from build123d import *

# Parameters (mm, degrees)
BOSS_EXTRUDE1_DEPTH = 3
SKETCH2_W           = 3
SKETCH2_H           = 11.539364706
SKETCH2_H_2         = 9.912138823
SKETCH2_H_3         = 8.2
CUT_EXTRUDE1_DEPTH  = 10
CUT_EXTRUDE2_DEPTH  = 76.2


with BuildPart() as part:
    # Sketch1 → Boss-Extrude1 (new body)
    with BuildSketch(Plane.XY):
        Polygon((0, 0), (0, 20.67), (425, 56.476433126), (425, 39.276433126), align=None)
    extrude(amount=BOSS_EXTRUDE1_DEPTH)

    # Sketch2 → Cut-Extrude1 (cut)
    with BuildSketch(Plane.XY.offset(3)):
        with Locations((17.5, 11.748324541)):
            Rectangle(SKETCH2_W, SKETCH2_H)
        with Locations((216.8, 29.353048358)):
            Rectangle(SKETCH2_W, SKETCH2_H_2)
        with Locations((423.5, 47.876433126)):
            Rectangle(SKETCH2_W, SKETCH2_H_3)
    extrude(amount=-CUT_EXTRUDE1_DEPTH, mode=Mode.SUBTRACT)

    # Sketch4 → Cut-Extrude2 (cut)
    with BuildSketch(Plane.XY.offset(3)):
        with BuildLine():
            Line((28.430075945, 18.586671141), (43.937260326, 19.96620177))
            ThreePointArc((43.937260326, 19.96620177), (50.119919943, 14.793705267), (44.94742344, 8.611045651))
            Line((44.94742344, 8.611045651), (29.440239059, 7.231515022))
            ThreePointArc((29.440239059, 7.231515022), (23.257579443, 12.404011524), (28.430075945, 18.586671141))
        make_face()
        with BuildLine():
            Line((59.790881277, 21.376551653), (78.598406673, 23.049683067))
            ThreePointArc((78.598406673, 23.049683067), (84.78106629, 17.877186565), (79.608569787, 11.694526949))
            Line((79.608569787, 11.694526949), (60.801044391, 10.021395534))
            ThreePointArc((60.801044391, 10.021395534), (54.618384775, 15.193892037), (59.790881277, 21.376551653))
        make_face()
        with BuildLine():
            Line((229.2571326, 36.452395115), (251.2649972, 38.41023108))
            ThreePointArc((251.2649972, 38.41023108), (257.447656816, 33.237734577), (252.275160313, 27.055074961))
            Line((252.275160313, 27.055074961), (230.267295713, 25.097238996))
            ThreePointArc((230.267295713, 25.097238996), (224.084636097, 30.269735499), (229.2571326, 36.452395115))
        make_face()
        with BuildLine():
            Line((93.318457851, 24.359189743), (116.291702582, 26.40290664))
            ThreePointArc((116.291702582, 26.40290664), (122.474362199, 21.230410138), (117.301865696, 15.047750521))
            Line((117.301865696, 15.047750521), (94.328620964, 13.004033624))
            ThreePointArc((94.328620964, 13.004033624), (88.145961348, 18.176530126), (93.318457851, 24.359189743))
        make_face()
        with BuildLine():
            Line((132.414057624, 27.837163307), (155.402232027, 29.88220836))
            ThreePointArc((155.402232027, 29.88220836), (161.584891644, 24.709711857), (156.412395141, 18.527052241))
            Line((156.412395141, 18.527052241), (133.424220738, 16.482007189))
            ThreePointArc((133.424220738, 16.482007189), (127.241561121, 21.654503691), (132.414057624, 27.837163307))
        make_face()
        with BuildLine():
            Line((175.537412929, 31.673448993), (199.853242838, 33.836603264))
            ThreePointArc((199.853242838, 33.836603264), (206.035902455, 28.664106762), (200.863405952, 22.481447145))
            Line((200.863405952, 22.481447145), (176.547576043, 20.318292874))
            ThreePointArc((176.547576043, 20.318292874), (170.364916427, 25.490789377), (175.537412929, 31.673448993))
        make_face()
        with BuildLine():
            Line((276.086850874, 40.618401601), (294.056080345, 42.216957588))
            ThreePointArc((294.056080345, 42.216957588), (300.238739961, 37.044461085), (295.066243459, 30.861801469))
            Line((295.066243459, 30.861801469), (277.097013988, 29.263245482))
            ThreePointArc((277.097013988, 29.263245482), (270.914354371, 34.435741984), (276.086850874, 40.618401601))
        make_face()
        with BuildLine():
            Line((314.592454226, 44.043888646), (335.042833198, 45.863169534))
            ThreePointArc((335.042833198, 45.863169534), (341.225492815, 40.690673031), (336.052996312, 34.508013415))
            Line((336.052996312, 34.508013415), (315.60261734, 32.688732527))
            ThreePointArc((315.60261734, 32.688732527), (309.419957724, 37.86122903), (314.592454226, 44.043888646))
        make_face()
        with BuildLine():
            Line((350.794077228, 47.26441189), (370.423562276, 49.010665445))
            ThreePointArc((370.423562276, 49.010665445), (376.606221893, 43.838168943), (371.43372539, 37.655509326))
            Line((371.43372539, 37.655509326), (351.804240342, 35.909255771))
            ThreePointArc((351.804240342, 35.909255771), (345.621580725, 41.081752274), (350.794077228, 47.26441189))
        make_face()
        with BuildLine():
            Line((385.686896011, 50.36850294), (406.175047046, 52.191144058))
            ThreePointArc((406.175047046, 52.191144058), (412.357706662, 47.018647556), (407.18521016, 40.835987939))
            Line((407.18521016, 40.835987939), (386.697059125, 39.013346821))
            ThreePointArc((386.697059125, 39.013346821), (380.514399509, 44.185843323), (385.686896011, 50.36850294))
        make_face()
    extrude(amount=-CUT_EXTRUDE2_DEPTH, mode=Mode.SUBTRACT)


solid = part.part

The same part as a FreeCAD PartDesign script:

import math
import FreeCAD as App
import Part
import Sketcher

V = App.Vector
Q = App.Units.Quantity

doc = App.newDocument("Part")
body = doc.addObject("PartDesign::Body", "Body")

sketch1 = body.newObject("Sketcher::SketchObject", "Sketch")
sketch1.AttachmentSupport = (doc.getObject("XY_Plane"), [""])
sketch1.MapMode = "FlatFace"
sketch1.addGeometry([
    Part.LineSegment(V(0, 21, 0), V(0, 0, 0)),
    Part.LineSegment(V(0, 0, 0), V(425, 39, 0)),
    Part.LineSegment(V(425, 39, 0), V(425, 56, 0)),
    Part.LineSegment(V(425, 56, 0), V(0, 21, 0)),
], False)
sketch1.addConstraint([
    Sketcher.Constraint("Coincident", 0, 2, 1, 1),
    Sketcher.Constraint("Coincident", 1, 2, 2, 1),
    Sketcher.Constraint("Coincident", 2, 2, 3, 1),
    Sketcher.Constraint("Coincident", 3, 2, 0, 1),
    Sketcher.Constraint("Vertical", 0),
    Sketcher.Constraint("Vertical", 2),
    Sketcher.Constraint("Coincident", 0, 2, -1, 1),
    Sketcher.Constraint("DistanceY", 2, 1, 2, 2, Q("17.2 mm")),
    Sketcher.Constraint("DistanceX", -1, 1, 1, 2, Q("425 mm")),
    Sketcher.Constraint("DistanceY", 0, 2, 0, 1, Q("20.67 mm")),
    Sketcher.Constraint("Angle", 1, Q("5.28 deg")),
])
pad1 = body.newObject("PartDesign::Pad", "Pad")
pad1.Profile = sketch1
pad1.Length = 3

sketch2 = body.newObject("Sketcher::SketchObject", "Sketch001")
sketch2.AttachmentSupport = (doc.getObject("XY_Plane"), [""])
sketch2.MapMode = "FlatFace"
sketch2.AttachmentOffset = App.Placement(V(0, 0, 3), App.Rotation())
sketch2.addGeometry([
    Part.LineSegment(V(16, 17.5, 0), V(16, 6, 0)),
    Part.LineSegment(V(16, 6, 0), V(19, 6, 0)),
    Part.LineSegment(V(19, 6, 0), V(19, 17.5, 0)),
    Part.LineSegment(V(19, 17.5, 0), V(16, 17.5, 0)),
    Part.LineSegment(V(215.3, 34.3, 0), V(215.3, 24.4, 0)),
    Part.LineSegment(V(215.3, 24.4, 0), V(218.3, 24.4, 0)),
    Part.LineSegment(V(218.3, 24.4, 0), V(218.3, 34.3, 0)),
    Part.LineSegment(V(218.3, 34.3, 0), V(215.3, 34.3, 0)),
    Part.LineSegment(V(422, 52, 0), V(422, 43.8, 0)),
    Part.LineSegment(V(422, 43.8, 0), V(425, 43.8, 0)),
    Part.LineSegment(V(425, 43.8, 0), V(425, 52, 0)),
    Part.LineSegment(V(425, 52, 0), V(422, 52, 0)),
], False)
sketch2.addConstraint([
    Sketcher.Constraint("Coincident", 0, 2, 1, 1),
    Sketcher.Constraint("Coincident", 1, 2, 2, 1),
    Sketcher.Constraint("Coincident", 2, 2, 3, 1),
    Sketcher.Constraint("Coincident", 3, 2, 0, 1),
    Sketcher.Constraint("Coincident", 4, 2, 5, 1),
    Sketcher.Constraint("Coincident", 5, 2, 6, 1),
    Sketcher.Constraint("Coincident", 6, 2, 7, 1),
    Sketcher.Constraint("Coincident", 7, 2, 4, 1),
    Sketcher.Constraint("Coincident", 8, 2, 9, 1),
    Sketcher.Constraint("Coincident", 9, 2, 10, 1),
    Sketcher.Constraint("Coincident", 10, 2, 11, 1),
    Sketcher.Constraint("Coincident", 11, 2, 8, 1),
    Sketcher.Constraint("Vertical", 0),
    Sketcher.Constraint("Horizontal", 1),
    Sketcher.Constraint("Vertical", 2),
    Sketcher.Constraint("Horizontal", 3),
    Sketcher.Constraint("Vertical", 4),
    Sketcher.Constraint("Horizontal", 5),
    Sketcher.Constraint("Vertical", 6),
    Sketcher.Constraint("Horizontal", 7),
    Sketcher.Constraint("Vertical", 8),
    Sketcher.Constraint("Horizontal", 9),
    Sketcher.Constraint("Vertical", 10),
    Sketcher.Constraint("Horizontal", 11),
    Sketcher.Constraint("Equal", 3, 5),
    Sketcher.Constraint("Equal", 7, 9),
    Sketcher.Constraint("DistanceX", 1, 1, 1, 2, Q("3 mm")),
    Sketcher.Constraint("DistanceY", 8, 2, 8, 1, Q("8.2 mm")),
    Sketcher.Constraint("DistanceX", -1, 1, 0, 2, Q("16 mm")),
    Sketcher.Constraint("DistanceX", -1, 1, 8, 2, Q("422 mm")),
    Sketcher.Constraint("DistanceX", -1, 1, 4, 2, Q("215.3 mm")),
    Sketcher.Constraint("DistanceY", 4, 2, 4, 1, Q("9.912139 mm")),
    Sketcher.Constraint("DistanceY", 0, 2, 0, 1, Q("11.539365 mm")),
    Sketcher.Constraint("DistanceY", -1, 1, 4, 2, Q("24.396979 mm")),
    Sketcher.Constraint("DistanceY", 2, 2, 6, 2, Q("16.791111 mm")),
    Sketcher.Constraint("DistanceY", -1, 1, 8, 2, Q("43.776433 mm")),
])
pocket1 = body.newObject("PartDesign::Pocket", "Pocket")
pocket1.Profile = sketch2
pocket1.Length = 10

sketch3 = body.newObject("Sketcher::SketchObject", "Sketch002")
sketch3.AttachmentSupport = (doc.getObject("XY_Plane"), [""])
sketch3.MapMode = "FlatFace"
sketch3.AttachmentOffset = App.Placement(V(0, 0, 3), App.Rotation())
sketch3.addGeometry([
    Part.LineSegment(V(44, 20, 0), V(28, 19, 0)),
    Part.ArcOfCircle(Part.Circle(V(29, 13, 0), V(0, 0, 1), 6), math.radians(95), math.radians(275)),
    Part.LineSegment(V(29, 7, 0), V(45, 9, 0)),
    Part.ArcOfCircle(Part.Circle(V(44, 14, 0), V(0, 0, 1), 6), math.radians(-85), math.radians(95)),
    Part.LineSegment(V(79, 23, 0), V(60, 21, 0)),
    Part.ArcOfCircle(Part.Circle(V(60, 16, 0), V(0, 0, 1), 6), math.radians(95), math.radians(275)),
    Part.LineSegment(V(61, 10, 0), V(80, 12, 0)),
    Part.ArcOfCircle(Part.Circle(V(79, 17, 0), V(0, 0, 1), 6), math.radians(-85), math.radians(95)),
    Part.LineSegment(V(251, 38, 0), V(229, 36, 0)),
    Part.ArcOfCircle(Part.Circle(V(230, 31, 0), V(0, 0, 1), 6), math.radians(95), math.radians(275)),
    Part.LineSegment(V(230, 25, 0), V(252, 27, 0)),
    Part.ArcOfCircle(Part.Circle(V(252, 33, 0), V(0, 0, 1), 6), math.radians(-85), math.radians(95)),
    Part.LineSegment(V(116, 26, 0), V(93, 24, 0)),
    Part.ArcOfCircle(Part.Circle(V(94, 19, 0), V(0, 0, 1), 6), math.radians(95), math.radians(275)),
    Part.LineSegment(V(94, 13, 0), V(117, 15, 0)),
    Part.ArcOfCircle(Part.Circle(V(117, 21, 0), V(0, 0, 1), 6), math.radians(-85), math.radians(95)),
    Part.LineSegment(V(155, 30, 0), V(132, 28, 0)),
    Part.ArcOfCircle(Part.Circle(V(133, 22, 0), V(0, 0, 1), 6), math.radians(95), math.radians(275)),
    Part.LineSegment(V(133, 16, 0), V(156, 19, 0)),
    Part.ArcOfCircle(Part.Circle(V(156, 24, 0), V(0, 0, 1), 6), math.radians(-85), math.radians(95)),
    Part.LineSegment(V(200, 34, 0), V(176, 32, 0)),
    Part.ArcOfCircle(Part.Circle(V(176, 26, 0), V(0, 0, 1), 6), math.radians(95), math.radians(275)),
    Part.LineSegment(V(177, 20, 0), V(201, 22, 0)),
    Part.ArcOfCircle(Part.Circle(V(200, 28, 0), V(0, 0, 1), 6), math.radians(-85), math.radians(95)),
    Part.LineSegment(V(294, 42, 0), V(276, 41, 0)),
    Part.ArcOfCircle(Part.Circle(V(277, 35, 0), V(0, 0, 1), 6), math.radians(95), math.radians(275)),
    Part.LineSegment(V(277, 29, 0), V(295, 31, 0)),
    Part.ArcOfCircle(Part.Circle(V(295, 37, 0), V(0, 0, 1), 6), math.radians(-85), math.radians(95)),
    Part.LineSegment(V(335, 46, 0), V(315, 44, 0)),
    Part.ArcOfCircle(Part.Circle(V(315, 38, 0), V(0, 0, 1), 6), math.radians(95), math.radians(275)),
    Part.LineSegment(V(316, 33, 0), V(336, 35, 0)),
    Part.ArcOfCircle(Part.Circle(V(336, 40, 0), V(0, 0, 1), 6), math.radians(-85), math.radians(95)),
    Part.LineSegment(V(370, 49, 0), V(351, 47, 0)),
    Part.ArcOfCircle(Part.Circle(V(351, 42, 0), V(0, 0, 1), 6), math.radians(95), math.radians(275)),
    Part.LineSegment(V(352, 36, 0), V(371, 38, 0)),
    Part.ArcOfCircle(Part.Circle(V(371, 43, 0), V(0, 0, 1), 6), math.radians(-85), math.radians(95)),
    Part.LineSegment(V(406, 52, 0), V(386, 50, 0)),
    Part.ArcOfCircle(Part.Circle(V(386, 45, 0), V(0, 0, 1), 6), math.radians(95), math.radians(275)),
    Part.LineSegment(V(387, 39, 0), V(407, 41, 0)),
    Part.ArcOfCircle(Part.Circle(V(407, 47, 0), V(0, 0, 1), 6), math.radians(-85), math.radians(95)),
], False)
sketch3.addConstraint([
    Sketcher.Constraint("Tangent", 0, 2, 1, 1),
    Sketcher.Constraint("Tangent", 1, 2, 2, 1),
    Sketcher.Constraint("Tangent", 2, 2, 3, 1),
    Sketcher.Constraint("Tangent", 3, 2, 0, 1),
    Sketcher.Constraint("Tangent", 4, 2, 5, 1),
    Sketcher.Constraint("Tangent", 5, 2, 6, 1),
    Sketcher.Constraint("Tangent", 6, 2, 7, 1),
    Sketcher.Constraint("Tangent", 7, 2, 4, 1),
    Sketcher.Constraint("Tangent", 8, 2, 9, 1),
    Sketcher.Constraint("Tangent", 9, 2, 10, 1),
    Sketcher.Constraint("Tangent", 10, 2, 11, 1),
    Sketcher.Constraint("Tangent", 11, 2, 8, 1),
    Sketcher.Constraint("Tangent", 12, 2, 13, 1),
    Sketcher.Constraint("Tangent", 13, 2, 14, 1),
    Sketcher.Constraint("Tangent", 14, 2, 15, 1),
    Sketcher.Constraint("Tangent", 15, 2, 12, 1),
    Sketcher.Constraint("Tangent", 16, 2, 17, 1),
    Sketcher.Constraint("Tangent", 17, 2, 18, 1),
    Sketcher.Constraint("Tangent", 18, 2, 19, 1),
    Sketcher.Constraint("Tangent", 19, 2, 16, 1),
    Sketcher.Constraint("Tangent", 20, 2, 21, 1),
    Sketcher.Constraint("Tangent", 21, 2, 22, 1),
    Sketcher.Constraint("Tangent", 22, 2, 23, 1),
    Sketcher.Constraint("Tangent", 23, 2, 20, 1),
    Sketcher.Constraint("Tangent", 24, 2, 25, 1),
    Sketcher.Constraint("Tangent", 25, 2, 26, 1),
    Sketcher.Constraint("Tangent", 26, 2, 27, 1),
    Sketcher.Constraint("Tangent", 27, 2, 24, 1),
    Sketcher.Constraint("Tangent", 28, 2, 29, 1),
    Sketcher.Constraint("Tangent", 29, 2, 30, 1),
    Sketcher.Constraint("Tangent", 30, 2, 31, 1),
    Sketcher.Constraint("Tangent", 31, 2, 28, 1),
    Sketcher.Constraint("Tangent", 32, 2, 33, 1),
    Sketcher.Constraint("Tangent", 33, 2, 34, 1),
    Sketcher.Constraint("Tangent", 34, 2, 35, 1),
    Sketcher.Constraint("Tangent", 35, 2, 32, 1),
    Sketcher.Constraint("Tangent", 36, 2, 37, 1),
    Sketcher.Constraint("Tangent", 37, 2, 38, 1),
    Sketcher.Constraint("Tangent", 38, 2, 39, 1),
    Sketcher.Constraint("Tangent", 39, 2, 36, 1),
    Sketcher.Constraint("Equal", 1, 3),
    Sketcher.Constraint("Equal", 3, 5),
    Sketcher.Constraint("Equal", 5, 7),
    Sketcher.Constraint("Equal", 7, 9),
    Sketcher.Constraint("Equal", 9, 11),
    Sketcher.Constraint("Equal", 11, 13),
    Sketcher.Constraint("Equal", 13, 15),
    Sketcher.Constraint("Equal", 15, 17),
    Sketcher.Constraint("Equal", 17, 19),
    Sketcher.Constraint("Equal", 19, 21),
    Sketcher.Constraint("Equal", 21, 23),
    Sketcher.Constraint("Equal", 23, 25),
    Sketcher.Constraint("Equal", 25, 27),
    Sketcher.Constraint("Equal", 27, 29),
    Sketcher.Constraint("Equal", 29, 31),
    Sketcher.Constraint("Equal", 31, 33),
    Sketcher.Constraint("Equal", 33, 35),
    Sketcher.Constraint("Equal", 35, 37),
    Sketcher.Constraint("Equal", 37, 39),
    Sketcher.Constraint("Parallel", 2, 4),
    Sketcher.Constraint("Parallel", 6, 8),
    Sketcher.Constraint("Parallel", 10, 12),
    Sketcher.Constraint("Parallel", 14, 16),
    Sketcher.Constraint("Parallel", 18, 20),
    Sketcher.Constraint("Parallel", 22, 24),
    Sketcher.Constraint("Parallel", 26, 28),
    Sketcher.Constraint("Parallel", 30, 32),
    Sketcher.Constraint("Parallel", 34, 36),
    Sketcher.Constraint("Radius", 1, Q("5.7 mm")),
    Sketcher.Constraint("DistanceY", 22, 2, 20, 2, Q("9.192002 mm")),
    Sketcher.Constraint("Distance", 4, Q("18.8818 mm")),
    Sketcher.Constraint("DistanceY", -1, 1, 3, 2, Q("19.966202 mm")),
    Sketcher.Constraint("DistanceY", -1, 1, 24, 2, Q("40.618402 mm")),
    Sketcher.Constraint("DistanceY", -1, 1, 26, 2, Q("30.861801 mm")),
    Sketcher.Constraint("DistanceX", 13, 3, 17, 3, Q("39.0956 mm")),
    Sketcher.Constraint("DistanceY", 15, 3, 19, 3, Q("3.479302 mm")),
    Sketcher.Constraint("DistanceX", 19, 3, 9, 3, Q("73.854901 mm")),
    Sketcher.Constraint("DistanceY", 23, 3, 25, 3, Q("6.781798 mm")),
    Sketcher.Constraint("DistanceX", 9, 3, 31, 3, Q("105.785701 mm")),
    Sketcher.Constraint("DistanceX", 8, 2, 25, 3, Q("47.3348 mm")),
    Sketcher.Constraint("DistanceX", 9, 2, 11, 2, Q("20.997701 mm")),
    Sketcher.Constraint("DistanceY", 17, 2, 15, 2, Q("9.920899 mm")),
    Sketcher.Constraint("DistanceX", 18, 2, 21, 3, Q("19.630099 mm")),
    Sketcher.Constraint("DistanceY", 30, 2, 32, 2, Q("12.756398 mm")),
    Sketcher.Constraint("Distance", 8, Q("22.094778 mm")),
    Sketcher.Constraint("Distance", 12, Q("23.063971 mm")),
    Sketcher.Constraint("Distance", 28, Q("20.531142 mm")),
    Sketcher.Constraint("DistanceX", -1, 1, 3, 3, Q("44.442342 mm")),
    Sketcher.Constraint("DistanceX", -1, 1, 7, 3, Q("79.103488 mm")),
    Sketcher.Constraint("DistanceX", -1, 1, 11, 3, Q("251.770079 mm")),
    Sketcher.Constraint("DistanceY", -1, 1, 13, 3, Q("18.681612 mm")),
    Sketcher.Constraint("DistanceY", -1, 1, 29, 3, Q("38.366311 mm")),
    Sketcher.Constraint("DistanceX", -1, 1, 33, 3, Q("351.299159 mm")),
    Sketcher.Constraint("DistanceX", -1, 1, 39, 3, Q("406.680129 mm")),
    Sketcher.Constraint("DistanceY", -1, 1, 0, 2, Q("18.586671 mm")),
    Sketcher.Constraint("DistanceY", -1, 1, 4, 2, Q("21.376552 mm")),
    Sketcher.Constraint("DistanceY", -1, 1, 9, 2, Q("25.097239 mm")),
    Sketcher.Constraint("DistanceY", -1, 1, 34, 2, Q("37.655509 mm")),
    Sketcher.Constraint("DistanceX", -1, 1, 37, 2, Q("386.697059 mm")),
    Sketcher.Constraint("DistanceY", 33, 3, 37, 3, Q("3.104091 mm")),
])
pocket2 = body.newObject("PartDesign::Pocket", "Pocket001")
pocket2.Profile = sketch3
pocket2.Length = 76.2

doc.recompute()
